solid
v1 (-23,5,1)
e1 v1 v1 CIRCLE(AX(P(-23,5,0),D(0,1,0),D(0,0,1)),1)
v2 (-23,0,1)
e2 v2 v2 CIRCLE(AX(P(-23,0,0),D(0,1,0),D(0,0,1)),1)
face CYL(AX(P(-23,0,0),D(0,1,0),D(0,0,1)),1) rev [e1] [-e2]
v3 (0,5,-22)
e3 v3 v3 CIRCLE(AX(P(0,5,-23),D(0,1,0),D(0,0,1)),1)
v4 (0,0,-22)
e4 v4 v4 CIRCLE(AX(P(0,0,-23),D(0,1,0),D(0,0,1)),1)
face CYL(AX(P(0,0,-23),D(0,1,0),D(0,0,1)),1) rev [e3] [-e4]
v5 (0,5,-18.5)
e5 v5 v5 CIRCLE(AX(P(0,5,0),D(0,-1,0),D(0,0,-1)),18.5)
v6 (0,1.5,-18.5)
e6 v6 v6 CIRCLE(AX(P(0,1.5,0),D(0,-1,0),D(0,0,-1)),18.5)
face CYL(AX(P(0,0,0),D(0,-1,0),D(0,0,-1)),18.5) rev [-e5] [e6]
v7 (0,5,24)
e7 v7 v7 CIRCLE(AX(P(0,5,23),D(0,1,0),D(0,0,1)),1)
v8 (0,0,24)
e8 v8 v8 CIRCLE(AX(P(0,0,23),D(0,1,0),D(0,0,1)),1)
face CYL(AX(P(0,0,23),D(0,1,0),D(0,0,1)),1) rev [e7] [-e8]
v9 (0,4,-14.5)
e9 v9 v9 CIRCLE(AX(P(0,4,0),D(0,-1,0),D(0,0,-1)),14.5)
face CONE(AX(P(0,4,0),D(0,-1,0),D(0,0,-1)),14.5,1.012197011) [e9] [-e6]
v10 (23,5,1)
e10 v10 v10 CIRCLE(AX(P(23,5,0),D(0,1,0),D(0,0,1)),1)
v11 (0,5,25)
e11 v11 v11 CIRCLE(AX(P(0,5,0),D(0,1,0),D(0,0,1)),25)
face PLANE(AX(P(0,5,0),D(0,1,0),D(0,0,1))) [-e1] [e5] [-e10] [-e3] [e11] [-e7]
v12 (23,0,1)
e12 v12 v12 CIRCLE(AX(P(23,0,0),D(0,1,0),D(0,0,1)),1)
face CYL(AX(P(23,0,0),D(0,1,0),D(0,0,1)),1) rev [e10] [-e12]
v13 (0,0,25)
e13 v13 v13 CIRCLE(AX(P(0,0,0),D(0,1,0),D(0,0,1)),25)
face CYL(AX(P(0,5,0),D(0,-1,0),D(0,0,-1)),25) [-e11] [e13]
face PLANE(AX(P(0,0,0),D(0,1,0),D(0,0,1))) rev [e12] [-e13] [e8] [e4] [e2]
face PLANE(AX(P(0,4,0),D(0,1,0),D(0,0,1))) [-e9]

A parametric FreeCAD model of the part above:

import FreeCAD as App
import Part
import Sketcher

V = App.Vector

doc = App.newDocument("Part")
params = doc.addObject("Spreadsheet::Sheet", "Params")
for row, (alias, value) in enumerate([
    ("sketch1_diameter", "50 mm"),
    ("pad1_length", "5 mm"),
    ("sketch2_height", "1 mm"),
    ("sketch2_width", "14.5 mm"),
    ("sketch2_width2", "18.5 mm"),
    ("sketch2_height2", "3.5 mm"),
    ("groove_angle", "360 deg"),
    ("sketch3_diameter", "2 mm"),
], start=1):
    params.set(f"A{row}", alias)
    params.set(f"B{row}", "=" + value)
    params.setAlias(f"B{row}", alias)

body = doc.addObject("PartDesign::Body", "Body")

# Sketch on XZ plane
sketch1 = body.newObject("Sketcher::SketchObject", "Sketch")
sketch1.AttachmentSupport = (doc.getObject("XZ_Plane"), [""])
sketch1.MapMode = "FlatFace"
sketch1.addGeometry(Part.Circle(V(0, 0, 0), V(0, 0, 1), 25), False)
sketch1.addConstraint([
    Sketcher.Constraint("Coincident", 0, 3, -1, 1),
    Sketcher.Constraint("Diameter", 0, 50.0),
])
sketch1.setExpression("Constraints[1]", "Params.sketch1_diameter")
pad1 = body.newObject("PartDesign::Pad", "Pad")
pad1.Profile = sketch1
pad1.setExpression("Length", "Params.pad1_length")
pad1.Reversed = True

# Sketch on XY plane
sketch2 = body.newObject("Sketcher::SketchObject", "Sketch001")
sketch2.AttachmentSupport = (doc.getObject("XY_Plane"), [""])
sketch2.MapMode = "FlatFace"
sketch2.addGeometry([
    Part.LineSegment(V(0, 5, 0), V(0, 4, 0)),  # 0
    Part.LineSegment(V(0, 4, 0), V(14.5, 4, 0)),  # 1
    Part.LineSegment(V(14.5, 4, 0), V(18.5, 1.5, 0)),  # 2
    Part.LineSegment(V(18.5, 1.5, 0), V(18.5, 5, 0)),  # 3
    Part.LineSegment(V(18.5, 5, 0), V(0, 5, 0)),  # 4
], False)
sketch2.addConstraint([
    Sketcher.Constraint("Coincident", 0, 2, 1, 1),
    Sketcher.Constraint("Coincident", 1, 2, 2, 1),
    Sketcher.Constraint("Coincident", 2, 2, 3, 1),
    Sketcher.Constraint("Coincident", 3, 2, 4, 1),
    Sketcher.Constraint("Coincident", 4, 2, 0, 1),
    Sketcher.Constraint("Vertical", 0),
    Sketcher.Constraint("Horizontal", 1),
    Sketcher.Constraint("Vertical", 3),
    Sketcher.Constraint("Horizontal", 4),
    Sketcher.Constraint("PointOnObject", 0, 2, -2),
    Sketcher.Constraint("DistanceY", 0, 2, 0, 1, 1.0),
    Sketcher.Constraint("DistanceX", 1, 1, 1, 2, 14.5),
    Sketcher.Constraint("DistanceX", 4, 2, 4, 1, 18.5),
    Sketcher.Constraint("DistanceY", 3, 1, 3, 2, 3.5),
    Sketcher.Constraint("DistanceY", -1, 1, 0, 2, 4.0),
])
sketch2.setExpression("Constraints[10]", "Params.sketch2_height")
sketch2.setExpression("Constraints[11]", "Params.sketch2_width")
sketch2.setExpression("Constraints[12]", "Params.sketch2_width2")
sketch2.setExpression("Constraints[13]", "Params.sketch2_height2")
groove = body.newObject("PartDesign::Groove", "Groove")
groove.Profile = sketch2
groove.ReferenceAxis = (sketch2, ["V_Axis"])
groove.setExpression("Angle", "Params.groove_angle")

# Sketch on XZ plane
sketch3 = body.newObject("Sketcher::SketchObject", "Sketch002")
sketch3.AttachmentSupport = (doc.getObject("XZ_Plane"), [""])
sketch3.MapMode = "FlatFace"
sketch3.AttachmentOffset = App.Placement(V(0, 0, -5), App.Rotation())
sketch3.addGeometry([
    Part.Circle(V(0, -23, 0), V(0, 0, 1), 1),
    Part.Circle(V(23, 0, 0), V(0, 0, 1), 1),
    Part.Circle(V(0, 23, 0), V(0, 0, 1), 1),
    Part.Circle(V(-23, 0, 0), V(0, 0, 1), 1),
], False)
sketch3.addConstraint([
    Sketcher.Constraint("Equal", 0, 1),
    Sketcher.Constraint("Equal", 1, 2),
    Sketcher.Constraint("Equal", 2, 3),
    Sketcher.Constraint("Symmetric", 0, 3, 2, 3, -1, 1),
    Sketcher.Constraint("Symmetric", 1, 3, 3, 3, -1, 1),
    Sketcher.Constraint("PointOnObject", 0, 3, -2),
    Sketcher.Constraint("PointOnObject", 1, 3, -1),
    Sketcher.Constraint("Diameter", 0, 2.0),
    Sketcher.Constraint("DistanceY", 0, 3, -1, 1, 23.0),
    Sketcher.Constraint("DistanceX", -1, 1, 1, 3, 23.0),
])
sketch3.setExpression("Constraints[7]", "Params.sketch3_diameter")
pocket1 = body.newObject("PartDesign::Pocket", "Pocket")
pocket1.Profile = sketch3
pocket1.Type = "ThroughAll"
pocket1.Reversed = True

doc.recompute()
